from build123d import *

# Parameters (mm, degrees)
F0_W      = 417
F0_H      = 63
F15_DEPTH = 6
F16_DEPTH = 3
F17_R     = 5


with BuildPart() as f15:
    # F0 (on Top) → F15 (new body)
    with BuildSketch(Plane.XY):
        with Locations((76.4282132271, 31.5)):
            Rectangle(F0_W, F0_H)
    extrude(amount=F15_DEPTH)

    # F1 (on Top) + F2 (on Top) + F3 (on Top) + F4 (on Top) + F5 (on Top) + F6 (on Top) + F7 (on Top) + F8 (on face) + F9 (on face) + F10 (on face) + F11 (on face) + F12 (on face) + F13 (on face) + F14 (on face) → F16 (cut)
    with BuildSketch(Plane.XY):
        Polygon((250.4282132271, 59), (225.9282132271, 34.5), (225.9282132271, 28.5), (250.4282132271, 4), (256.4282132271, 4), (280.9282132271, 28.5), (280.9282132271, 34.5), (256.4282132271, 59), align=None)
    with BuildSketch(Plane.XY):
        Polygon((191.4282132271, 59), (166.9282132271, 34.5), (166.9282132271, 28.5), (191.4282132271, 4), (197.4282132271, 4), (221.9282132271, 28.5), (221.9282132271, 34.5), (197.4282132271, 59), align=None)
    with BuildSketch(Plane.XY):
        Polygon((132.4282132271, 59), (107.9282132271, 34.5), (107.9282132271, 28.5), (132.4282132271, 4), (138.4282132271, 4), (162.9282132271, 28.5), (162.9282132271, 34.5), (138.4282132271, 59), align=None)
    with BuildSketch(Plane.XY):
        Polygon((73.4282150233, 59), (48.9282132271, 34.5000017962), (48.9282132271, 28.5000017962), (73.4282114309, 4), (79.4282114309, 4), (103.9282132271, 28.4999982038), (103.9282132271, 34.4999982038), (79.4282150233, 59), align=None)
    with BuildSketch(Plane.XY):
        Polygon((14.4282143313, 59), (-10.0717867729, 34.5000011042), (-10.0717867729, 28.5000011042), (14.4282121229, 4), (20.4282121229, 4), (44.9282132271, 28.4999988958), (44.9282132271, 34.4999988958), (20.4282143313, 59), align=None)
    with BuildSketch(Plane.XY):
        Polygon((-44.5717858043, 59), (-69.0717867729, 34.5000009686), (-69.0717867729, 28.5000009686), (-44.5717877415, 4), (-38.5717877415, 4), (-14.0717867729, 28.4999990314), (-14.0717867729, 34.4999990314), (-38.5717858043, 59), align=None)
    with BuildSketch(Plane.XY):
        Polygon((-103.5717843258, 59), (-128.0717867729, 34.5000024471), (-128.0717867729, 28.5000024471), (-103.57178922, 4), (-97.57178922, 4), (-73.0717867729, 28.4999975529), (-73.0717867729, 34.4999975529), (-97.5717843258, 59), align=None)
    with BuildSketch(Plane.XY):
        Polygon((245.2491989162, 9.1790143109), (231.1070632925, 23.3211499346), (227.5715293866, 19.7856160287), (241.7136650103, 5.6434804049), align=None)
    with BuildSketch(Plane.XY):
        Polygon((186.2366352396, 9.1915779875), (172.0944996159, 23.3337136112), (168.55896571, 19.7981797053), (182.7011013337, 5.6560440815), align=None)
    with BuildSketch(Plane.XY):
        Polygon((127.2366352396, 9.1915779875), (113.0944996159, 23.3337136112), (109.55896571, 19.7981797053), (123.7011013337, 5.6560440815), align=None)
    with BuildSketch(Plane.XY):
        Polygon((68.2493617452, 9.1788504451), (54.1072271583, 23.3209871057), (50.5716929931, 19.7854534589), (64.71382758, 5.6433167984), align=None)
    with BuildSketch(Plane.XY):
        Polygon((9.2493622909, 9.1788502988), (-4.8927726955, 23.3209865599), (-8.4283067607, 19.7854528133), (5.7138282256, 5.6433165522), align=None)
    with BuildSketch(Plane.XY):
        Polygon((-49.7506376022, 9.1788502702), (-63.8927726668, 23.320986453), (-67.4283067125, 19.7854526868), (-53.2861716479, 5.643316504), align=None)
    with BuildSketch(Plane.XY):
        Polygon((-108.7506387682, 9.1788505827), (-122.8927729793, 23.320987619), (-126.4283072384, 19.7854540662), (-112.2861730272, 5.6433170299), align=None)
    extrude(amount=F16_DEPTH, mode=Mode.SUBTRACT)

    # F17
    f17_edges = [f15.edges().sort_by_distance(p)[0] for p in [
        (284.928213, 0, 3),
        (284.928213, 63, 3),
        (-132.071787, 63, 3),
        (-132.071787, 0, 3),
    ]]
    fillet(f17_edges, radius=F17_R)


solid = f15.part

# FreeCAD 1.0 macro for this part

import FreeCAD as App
import Part
import Sketcher
from FreeCAD import Vector
Q = App.Units.Quantity


def edges_at(feature, points):
    """Names of the edges that pass closest to the given points."""
    edges = feature.Shape.Edges
    near = lambda p: min(range(len(edges)), key=lambda i: edges[i].distToShape(Part.Vertex(*p))[0])
    return sorted({f"Edge{near(p) + 1}" for p in points})


def add_polygon(sketch, points):
    """Adds a closed chain of lines whose ends are joined by coincident constraints."""
    first, n = sketch.GeometryCount, len(points)
    for a, b in zip(points, points[1:] + points[:1]):
        sketch.addGeometry(Part.LineSegment(App.Vector(*a, 0), App.Vector(*b, 0)), False)
    for i in range(n):
        sketch.addConstraint(Sketcher.Constraint("Coincident", first + i, 2, first + (i + 1) % n, 1))

doc = App.newDocument("Part")
body = doc.addObject("PartDesign::Body", "Body")

sketch1 = body.newObject("Sketcher::SketchObject", "Sketch")
sketch1.AttachmentSupport = (doc.getObject("XY_Plane"), [""])
sketch1.MapMode = "FlatFace"
add_polygon(sketch1, [(-132.071787, 63), (-132.071787, 0), (284.928213, 0), (284.928213, 63)])
sketch1.addConstraint(Sketcher.Constraint("Vertical", 0))
sketch1.addConstraint(Sketcher.Constraint("Horizontal", 1))
sketch1.addConstraint(Sketcher.Constraint("Vertical", 2))
sketch1.addConstraint(Sketcher.Constraint("Horizontal", 3))
sketch1.addConstraint(Sketcher.Constraint("PointOnObject", 0, 2, -1))
sketch1.addConstraint(Sketcher.Constraint("DistanceX", 1, 1, 1, 2, Q("417 mm")))
sketch1.addConstraint(Sketcher.Constraint("DistanceY", 0, 2, 0, 1, Q("63 mm")))
sketch1.addConstraint(Sketcher.Constraint("DistanceX", 0, 2, -1, 1, Q("132.071787 mm")))
pad1 = body.newObject("PartDesign::Pad", "Pad")
pad1.Profile = sketch1
pad1.Length = 6

sketch2 = body.newObject("Sketcher::SketchObject", "Sketch001")
sketch2.AttachmentSupport = (doc.getObject("XY_Plane"), [""])
sketch2.MapMode = "FlatFace"
add_polygon(sketch2, [(250.428213, 59), (225.928213, 34.5), (225.928213, 28.5), (231.107063, 23.32115), (227.571529, 19.785616), (241.713665, 5.64348), (245.249199, 9.179014), (250.428213, 4), (256.428213, 4), (280.928213, 28.5), (280.928213, 34.5), (256.428213, 59)])
add_polygon(sketch2, [(191.428213, 59), (166.928213, 34.5), (166.928213, 28.5), (172.0945, 23.333714), (168.558966, 19.79818), (182.701101, 5.656044), (186.236635, 9.191578), (191.428213, 4), (197.428213, 4), (221.928213, 28.5), (221.928213, 34.5), (197.428213, 59)])
add_polygon(sketch2, [(132.428213, 59), (107.928213, 34.5), (107.928213, 28.5), (113.0945, 23.333714), (109.558966, 19.79818), (123.701101, 5.656044), (127.236635, 9.191578), (132.428213, 4), (138.428213, 4), (162.928213, 28.5), (162.928213, 34.5), (138.428213, 59)])
add_polygon(sketch2, [(73.428215, 59), (48.928213, 34.500002), (48.928213, 28.500002), (54.107227, 23.320987), (50.571693, 19.785453), (64.713828, 5.643317), (68.249362, 9.17885), (73.428211, 4), (79.428211, 4), (103.928213, 28.499998), (103.928213, 34.499998), (79.428215, 59)])
add_polygon(sketch2, [(14.428214, 59), (-10.071787, 34.500001), (-10.071787, 28.500001), (-4.892773, 23.320987), (-8.428307, 19.785453), (5.713828, 5.643317), (9.249362, 9.17885), (14.428212, 4), (20.428212, 4), (44.928213, 28.499999), (44.928213, 34.499999), (20.428214, 59)])
add_polygon(sketch2, [(-44.571786, 59), (-69.071787, 34.500001), (-69.071787, 28.500001), (-63.892773, 23.320986), (-67.428307, 19.785453), (-53.286172, 5.643317), (-49.750638, 9.17885), (-44.571788, 4), (-38.571788, 4), (-14.071787, 28.499999), (-14.071787, 34.499999), (-38.571786, 59)])
add_polygon(sketch2, [(-103.571784, 59), (-128.071787, 34.500002), (-128.071787, 28.500002), (-122.892773, 23.320988), (-126.428307, 19.785454), (-112.286173, 5.643317), (-108.750639, 9.178851), (-103.571789, 4), (-97.571789, 4), (-73.071787, 28.499998), (-73.071787, 34.499998), (-97.571784, 59)])
sketch2.addConstraint(Sketcher.Constraint("Vertical", 1))
sketch2.addConstraint(Sketcher.Constraint("Horizontal", 7))
sketch2.addConstraint(Sketcher.Constraint("Vertical", 9))
sketch2.addConstraint(Sketcher.Constraint("Horizontal", 11))
sketch2.addConstraint(Sketcher.Constraint("Vertical", 13))
sketch2.addConstraint(Sketcher.Constraint("Horizontal", 19))
sketch2.addConstraint(Sketcher.Constraint("Vertical", 21))
sketch2.addConstraint(Sketcher.Constraint("Horizontal", 23))
sketch2.addConstraint(Sketcher.Constraint("Vertical", 25))
sketch2.addConstraint(Sketcher.Constraint("Horizontal", 31))
sketch2.addConstraint(Sketcher.Constraint("Vertical", 33))
sketch2.addConstraint(Sketcher.Constraint("Horizontal", 35))
sketch2.addConstraint(Sketcher.Constraint("Vertical", 37))
sketch2.addConstraint(Sketcher.Constraint("Horizontal", 43))
sketch2.addConstraint(Sketcher.Constraint("Vertical", 45))
sketch2.addConstraint(Sketcher.Constraint("Horizontal", 47))
sketch2.addConstraint(Sketcher.Constraint("Vertical", 49))
sketch2.addConstraint(Sketcher.Constraint("Horizontal", 55))
sketch2.addConstraint(Sketcher.Constraint("Vertical", 57))
sketch2.addConstraint(Sketcher.Constraint("Horizontal", 59))
sketch2.addConstraint(Sketcher.Constraint("Vertical", 61))
sketch2.addConstraint(Sketcher.Constraint("Horizontal", 67))
sketch2.addConstraint(Sketcher.Constraint("Vertical", 69))
sketch2.addConstraint(Sketcher.Constraint("Horizontal", 71))
sketch2.addConstraint(Sketcher.Constraint("Vertical", 73))
sketch2.addConstraint(Sketcher.Constraint("Horizontal", 79))
sketch2.addConstraint(Sketcher.Constraint("Vertical", 81))
sketch2.addConstraint(Sketcher.Constraint("Horizontal", 83))
sketch2.addConstraint(Sketcher.Constraint("Perpendicular", 0, 2))
sketch2.addConstraint(Sketcher.Constraint("Perpendicular", 2, 3))
sketch2.addConstraint(Sketcher.Constraint("Perpendicular", 3, 4))
sketch2.addConstraint(Sketcher.Constraint("Perpendicular", 4, 5))
sketch2.addConstraint(Sketcher.Constraint("Perpendicular", 5, 6))
sketch2.addConstraint(Sketcher.Constraint("Perpendicular", 6, 8))
sketch2.addConstraint(Sketcher.Constraint("Perpendicular", 8, 10))
sketch2.addConstraint(Sketcher.Constraint("Perpendicular", 10, 12))
sketch2.addConstraint(Sketcher.Constraint("Perpendicular", 12, 14))
sketch2.addConstraint(Sketcher.Constraint("Perpendicular", 14, 15))
sketch2.addConstraint(Sketcher.Constraint("Perpendicular", 15, 16))
sketch2.addConstraint(Sketcher.Constraint("Perpendicular", 16, 17))
sketch2.addConstraint(Sketcher.Constraint("Perpendicular", 17, 18))
sketch2.addConstraint(Sketcher.Constraint("Perpendicular", 18, 20))
sketch2.addConstraint(Sketcher.Constraint("Perpendicular", 20, 22))
sketch2.addConstraint(Sketcher.Constraint("Perpendicular", 22, 24))
sketch2.addConstraint(Sketcher.Constraint("Perpendicular", 24, 26))
sketch2.addConstraint(Sketcher.Constraint("Perpendicular", 26, 27))
sketch2.addConstraint(Sketcher.Constraint("Perpendicular", 27, 28))
sketch2.addConstraint(Sketcher.Constraint("Perpendicular", 28, 29))
sketch2.addConstraint(Sketcher.Constraint("Perpendicular", 29, 30))
sketch2.addConstraint(Sketcher.Constraint("Perpendicular", 30, 32))
sketch2.addConstraint(Sketcher.Constraint("Perpendicular", 32, 34))
sketch2.addConstraint(Sketcher.Constraint("Perpendicular", 34, 36))
sketch2.addConstraint(Sketcher.Constraint("Perpendicular", 36, 38))
sketch2.addConstraint(Sketcher.Constraint("Perpendicular", 38, 39))
sketch2.addConstraint(Sketcher.Constraint("Perpendicular", 39, 40))
sketch2.addConstraint(Sketcher.Constraint("Perpendicular", 40, 41))
sketch2.addConstraint(Sketcher.Constraint("Perpendicular", 41, 42))
sketch2.addConstraint(Sketcher.Constraint("Perpendicular", 42, 44))
sketch2.addConstraint(Sketcher.Constraint("Perpendicular", 44, 46))
sketch2.addConstraint(Sketcher.Constraint("Perpendicular", 46, 48))
sketch2.addConstraint(Sketcher.Constraint("Perpendicular", 48, 50))
sketch2.addConstraint(Sketcher.Constraint("Perpendicular", 50, 51))
sketch2.addConstraint(Sketcher.Constraint("Perpendicular", 51, 52))
sketch2.addConstraint(Sketcher.Constraint("Perpendicular", 52, 53))
sketch2.addConstraint(Sketcher.Constraint("Perpendicular", 53, 54))
sketch2.addConstraint(Sketcher.Constraint("Perpendicular", 54, 56))
sketch2.addConstraint(Sketcher.Constraint("Perpendicular", 56, 58))
sketch2.addConstraint(Sketcher.Constraint("Perpendicular", 58, 60))
sketch2.addConstraint(Sketcher.Constraint("Perpendicular", 60, 62))
sketch2.addConstraint(Sketcher.Constraint("Perpendicular", 62, 63))
sketch2.addConstraint(Sketcher.Constraint("Perpendicular", 63, 64))
sketch2.addConstraint(Sketcher.Constraint("Perpendicular", 64, 65))
sketch2.addConstraint(Sketcher.Constraint("Perpendicular", 65, 66))
sketch2.addConstraint(Sketcher.Constraint("Perpendicular", 66, 68))
sketch2.addConstraint(Sketcher.Constraint("Perpendicular", 68, 70))
sketch2.addConstraint(Sketcher.Constraint("Perpendicular", 70, 72))
sketch2.addConstraint(Sketcher.Constraint("Perpendicular", 72, 74))
sketch2.addConstraint(Sketcher.Constraint("Perpendicular", 74, 75))
sketch2.addConstraint(Sketcher.Constraint("Perpendicular", 75, 76))
sketch2.addConstraint(Sketcher.Constraint("Perpendicular", 76, 77))
sketch2.addConstraint(Sketcher.Constraint("Perpendicular", 77, 78))
sketch2.addConstraint(Sketcher.Constraint("Perpendicular", 78, 80))
sketch2.addConstraint(Sketcher.Constraint("Perpendicular", 80, 82))
sketch2.addConstraint(Sketcher.Constraint("Horizontal", 1, 2, 8, 2))
sketch2.addConstraint(Sketcher.Constraint("Horizontal", 0, 2, 9, 2))
sketch2.addConstraint(Sketcher.Constraint("Horizontal", 9, 2, 12, 2))
sketch2.addConstraint(Sketcher.Constraint("Horizontal", 8, 2, 13, 2))
sketch2.addConstraint(Sketcher.Constraint("Horizontal", 7, 2, 18, 2))
sketch2.addConstraint(Sketcher.Constraint("Horizontal", 13, 2, 20, 2))
sketch2.addConstraint(Sketcher.Constraint("Horizontal", 12, 2, 21, 2))
sketch2.addConstraint(Sketcher.Constraint("Horizontal", 11, 2, 22, 2))
sketch2.addConstraint(Sketcher.Constraint("Horizontal", 21, 2, 24, 2))
sketch2.addConstraint(Sketcher.Constraint("Horizontal", 20, 2, 25, 2))
sketch2.addConstraint(Sketcher.Constraint("Horizontal", 14, 2, 26, 2))
sketch2.addConstraint(Sketcher.Constraint("Horizontal", 15, 2, 27, 2))
sketch2.addConstraint(Sketcher.Constraint("Horizontal", 16, 2, 28, 2))
sketch2.addConstraint(Sketcher.Constraint("Horizontal", 17, 2, 29, 2))
sketch2.addConstraint(Sketcher.Constraint("Horizontal", 19, 2, 30, 2))
sketch2.addConstraint(Sketcher.Constraint("Horizontal", 25, 2, 32, 2))
sketch2.addConstraint(Sketcher.Constraint("Horizontal", 24, 2, 33, 2))
sketch2.addConstraint(Sketcher.Constraint("Horizontal", 23, 2, 34, 2))
sketch2.addConstraint(Sketcher.Constraint("Horizontal", 33, 2, 36, 2))
sketch2.addConstraint(Sketcher.Constraint("Horizontal", 32, 2, 37, 2))
sketch2.addConstraint(Sketcher.Constraint("Horizontal", 31, 2, 42, 2))
sketch2.addConstraint(Sketcher.Constraint("Horizontal", 32, 2, 44, 2))
sketch2.addConstraint(Sketcher.Constraint("Horizontal", 33, 2, 45, 2))
sketch2.addConstraint(Sketcher.Constraint("Horizontal", 35, 2, 46, 2))
sketch2.addConstraint(Sketcher.Constraint("Horizontal", 36, 2, 48, 2))
sketch2.addConstraint(Sketcher.Constraint("Horizontal", 37, 2, 49, 2))
sketch2.addConstraint(Sketcher.Constraint("Horizontal", 38, 2, 50, 2))
sketch2.addConstraint(Sketcher.Constraint("Horizontal", 39, 2, 51, 2))
sketch2.addConstraint(Sketcher.Constraint("Horizontal", 40, 2, 52, 2))
sketch2.addConstraint(Sketcher.Constraint("Horizontal", 41, 2, 53, 2))
sketch2.addConstraint(Sketcher.Constraint("Horizontal", 43, 2, 54, 2))
sketch2.addConstraint(Sketcher.Constraint("Horizontal", 44, 2, 56, 2))
sketch2.addConstraint(Sketcher.Constraint("Horizontal", 45, 2, 57, 2))
sketch2.addConstraint(Sketcher.Constraint("Horizontal", 47, 2, 58, 2))
sketch2.addConstraint(Sketcher.Constraint("Horizontal", 48, 2, 60, 2))
sketch2.addConstraint(Sketcher.Constraint("Horizontal", 49, 2, 61, 2))
sketch2.addConstraint(Sketcher.Constraint("Horizontal", 50, 2, 62, 2))
sketch2.addConstraint(Sketcher.Constraint("Horizontal", 51, 2, 63, 2))
sketch2.addConstraint(Sketcher.Constraint("Horizontal", 52, 2, 64, 2))
sketch2.addConstraint(Sketcher.Constraint("Horizontal", 53, 2, 65, 2))
sketch2.addConstraint(Sketcher.Constraint("Horizontal", 55, 2, 66, 2))
sketch2.addConstraint(Sketcher.Constraint("Horizontal", 61, 2, 68, 2))
sketch2.addConstraint(Sketcher.Constraint("Horizontal", 60, 2, 69, 2))
sketch2.addConstraint(Sketcher.Constraint("Horizontal", 59, 2, 70, 2))
sketch2.addConstraint(Sketcher.Constraint("Horizontal", 60, 2, 72, 2))
sketch2.addConstraint(Sketcher.Constraint("Horizontal", 61, 2, 73, 2))
sketch2.addConstraint(Sketcher.Constraint("Horizontal", 62, 2, 74, 2))
sketch2.addConstraint(Sketcher.Constraint("Horizontal", 63, 2, 75, 2))
sketch2.addConstraint(Sketcher.Constraint("Horizontal", 64, 2, 76, 2))
sketch2.addConstraint(Sketcher.Constraint("Horizontal", 65, 2, 77, 2))
sketch2.addConstraint(Sketcher.Constraint("Horizontal", 67, 2, 78, 2))
sketch2.addConstraint(Sketcher.Constraint("Horizontal", 68, 2, 80, 2))
sketch2.addConstraint(Sketcher.Constraint("Horizontal", 69, 2, 81, 2))
sketch2.addConstraint(Sketcher.Constraint("Horizontal", 71, 2, 82, 2))
sketch2.addConstraint(Sketcher.Constraint("Vertical", 7, 2, 10, 2))
sketch2.addConstraint(Sketcher.Constraint("Vertical", 6, 2, 11, 2))
sketch2.addConstraint(Sketcher.Constraint("Vertical", 18, 2, 23, 2))
sketch2.addConstraint(Sketcher.Constraint("Vertical", 66, 2, 71, 2))
sketch2.addConstraint(Sketcher.Constraint("Equal", 11, 19))
sketch2.addConstraint(Sketcher.Constraint("Equal", 23, 31))
sketch2.addConstraint(Sketcher.Constraint("Equal", 35, 43))
sketch2.addConstraint(Sketcher.Constraint("Equal", 47, 55))
sketch2.addConstraint(Sketcher.Constraint("Equal", 59, 67))
sketch2.addConstraint(Sketcher.Constraint("Equal", 71, 79))
sketch2.addConstraint(Sketcher.Constraint("Equal", 83, 1))
sketch2.addConstraint(Sketcher.Constraint("Equal", 3, 5))
sketch2.addConstraint(Sketcher.Constraint("Equal", 5, 15))
sketch2.addConstraint(Sketcher.Constraint("Equal", 4, 16))
sketch2.addConstraint(Sketcher.Constraint("Equal", 6, 38))
sketch2.addConstraint(Sketcher.Constraint("Equal", 29, 39))
sketch2.addConstraint(Sketcher.Constraint("Equal", 28, 40))
sketch2.addConstraint(Sketcher.Constraint("DistanceX", 7, 1, 7, 2, Q("6 mm")))
sketch2.addConstraint(Sketcher.Constraint("Distance", 3, Q("5 mm")))
sketch2.addConstraint(Sketcher.Constraint("Distance", 4, Q("20 mm")))
sketch2.addConstraint(Sketcher.Constraint("DistanceY", -1, 1, 6, 2, Q("4 mm")))
sketch2.addConstraint(Sketcher.Constraint("DistanceY", -1, 1, 10, 2, Q("59 mm")))
sketch2.addConstraint(Sketcher.Constraint("Distance", 2, Q("7.324 mm")))
sketch2.addConstraint(Sketcher.Constraint("Distance", 18, Q("7.342 mm")))
sketch2.addConstraint(Sketcher.Constraint("DistanceX", -1, 1, 5, 2, Q("245.249199 mm")))
sketch2.addConstraint(Sketcher.Constraint("DistanceX", -1, 1, 14, 2, Q("172.0945 mm")))
sketch2.addConstraint(Sketcher.Constraint("DistanceX", -1, 1, 26, 2, Q("113.0945 mm")))
sketch2.addConstraint(Sketcher.Constraint("DistanceX", -1, 1, 41, 2, Q("68.249362 mm")))
sketch2.addConstraint(Sketcher.Constraint("DistanceX", -1, 1, 52, 2, Q("5.713828 mm")))
sketch2.addConstraint(Sketcher.Constraint("DistanceX", 64, 2, -1, 1, Q("53.286172 mm")))
sketch2.addConstraint(Sketcher.Constraint("DistanceX", 77, 2, -1, 1, Q("108.750639 mm")))
pocket1 = body.newObject("PartDesign::Pocket", "Pocket")
pocket1.Profile = sketch2
pocket1.Length = 3
pocket1.Reversed = True
doc.recompute()

fillet = body.newObject("PartDesign::Fillet", "Fillet")
fillet.Base = (pocket1, edges_at(pocket1, [
    (284.928, 0, 3),
    (284.928, 63, 3),
    (-132.072, 63, 3),
    (-132.072, 0, 3),
]))
fillet.Radius = 5

doc.recompute()
